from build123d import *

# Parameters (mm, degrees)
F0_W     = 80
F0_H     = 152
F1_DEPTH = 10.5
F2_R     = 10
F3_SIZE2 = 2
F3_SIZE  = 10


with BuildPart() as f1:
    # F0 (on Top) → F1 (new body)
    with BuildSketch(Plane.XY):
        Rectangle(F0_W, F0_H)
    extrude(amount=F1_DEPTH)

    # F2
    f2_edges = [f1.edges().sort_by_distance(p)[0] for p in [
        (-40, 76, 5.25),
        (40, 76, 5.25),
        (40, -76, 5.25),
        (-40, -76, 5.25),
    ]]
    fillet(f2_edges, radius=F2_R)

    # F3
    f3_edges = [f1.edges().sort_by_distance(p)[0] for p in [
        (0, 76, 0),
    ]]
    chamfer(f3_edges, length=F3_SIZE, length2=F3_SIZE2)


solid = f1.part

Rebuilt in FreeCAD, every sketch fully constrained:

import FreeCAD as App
import Part
import Sketcher
from FreeCAD import Vector


def edges_at(feature, points):
    """Names of the edges that pass closest to the given points."""
    edges = feature.Shape.Edges
    near = lambda p: min(range(len(edges)), key=lambda i: edges[i].distToShape(Part.Vertex(*p))[0])
    return sorted({f"Edge{near(p) + 1}" for p in points})


def add_polygon(sketch, points):
    """Adds a closed chain of lines whose ends are joined by coincident constraints."""
    first, n = sketch.GeometryCount, len(points)
    for a, b in zip(points, points[1:] + points[:1]):
        sketch.addGeometry(Part.LineSegment(App.Vector(*a, 0), App.Vector(*b, 0)), False)
    for i in range(n):
        sketch.addConstraint(Sketcher.Constraint("Coincident", first + i, 2, first + (i + 1) % n, 1))

doc = App.newDocument("Part")
body = doc.addObject("PartDesign::Body", "Body")

# Sketch on XY plane
sketch1 = body.newObject("Sketcher::SketchObject", "Sketch")
sketch1.AttachmentSupport = (doc.getObject("XY_Plane"), [""])
sketch1.MapMode = "FlatFace"
add_polygon(sketch1, [(-40, 76), (-40, -76), (40, -76), (40, 76)])  # lines 0-3
sketch1.addConstraint(Sketcher.Constraint("Vertical", 0))
sketch1.addConstraint(Sketcher.Constraint("Horizontal", 1))
sketch1.addConstraint(Sketcher.Constraint("Vertical", 2))
sketch1.addConstraint(Sketcher.Constraint("Horizontal", 3))
sketch1.addConstraint(Sketcher.Constraint("Symmetric", 0, 2, 2, 2, -1, 1))
sketch1.addConstraint(Sketcher.Constraint("DistanceX", 1, 1, 1, 2, 80.0))
sketch1.addConstraint(Sketcher.Constraint("DistanceY", 0, 2, 0, 1, 152.0))
pad1 = body.newObject("PartDesign::Pad", "Pad")
pad1.Profile = sketch1
pad1.Length = 10.5
doc.recompute()

fillet = body.newObject("PartDesign::Fillet", "Fillet")
fillet.Base = (pad1, edges_at(pad1, [
    (-40, 76, 5.25),
    (40, 76, 5.25),
    (40, -76, 5.25),
    (-40, -76, 5.25),
]))
fillet.Radius = 10
doc.recompute()

chamfer = body.newObject("PartDesign::Chamfer", "Chamfer")
chamfer.Base = (fillet, edges_at(fillet, [(0, 76, 0)]))
chamfer.ChamferType = "Two distances"
chamfer.Size = 10
chamfer.Size2 = 2

doc.recompute()
